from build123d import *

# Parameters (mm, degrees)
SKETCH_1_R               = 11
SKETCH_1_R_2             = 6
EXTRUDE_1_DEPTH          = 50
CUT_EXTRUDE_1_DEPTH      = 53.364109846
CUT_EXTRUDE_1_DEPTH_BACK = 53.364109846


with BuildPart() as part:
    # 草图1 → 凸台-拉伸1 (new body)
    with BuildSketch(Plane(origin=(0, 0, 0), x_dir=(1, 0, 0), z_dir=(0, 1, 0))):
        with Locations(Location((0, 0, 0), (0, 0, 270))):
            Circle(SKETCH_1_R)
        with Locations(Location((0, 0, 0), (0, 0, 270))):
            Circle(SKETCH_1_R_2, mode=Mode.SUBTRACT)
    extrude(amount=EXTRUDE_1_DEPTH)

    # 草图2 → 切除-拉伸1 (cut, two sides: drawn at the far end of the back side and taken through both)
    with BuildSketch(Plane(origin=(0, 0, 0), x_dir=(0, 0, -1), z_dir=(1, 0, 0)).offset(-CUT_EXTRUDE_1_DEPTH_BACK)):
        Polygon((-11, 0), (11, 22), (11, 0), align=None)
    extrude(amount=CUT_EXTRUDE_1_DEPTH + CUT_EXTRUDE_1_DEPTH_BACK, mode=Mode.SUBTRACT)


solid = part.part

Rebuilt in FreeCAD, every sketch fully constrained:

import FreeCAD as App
import Part
import Sketcher

V = App.Vector

doc = App.newDocument("Part")
params = doc.addObject("Spreadsheet::Sheet", "Params")
for row, (alias, value) in enumerate([
    ("sketch1_diameter", "22 mm"),
    ("sketch1_diameter2", "12 mm"),
    ("pad1_length", "50 mm"),
    ("sketch2_width", "22 mm"),
], start=1):
    params.set(f"A{row}", alias)
    params.set(f"B{row}", "=" + value)
    params.setAlias(f"B{row}", alias)

body = doc.addObject("PartDesign::Body", "Body")

# Sketch on XZ plane
sketch1 = body.newObject("Sketcher::SketchObject", "Sketch")
sketch1.AttachmentSupport = (doc.getObject("XZ_Plane"), [""])
sketch1.MapMode = "FlatFace"
sketch1.addGeometry([
    Part.Circle(V(0, 0, 0), V(0, 0, 1), 11),
    Part.Circle(V(0, 0, 0), V(0, 0, 1), 6),
], False)
sketch1.addConstraint([
    Sketcher.Constraint("Coincident", 0, 3, -1, 1),
    Sketcher.Constraint("Coincident", 1, 3, -1, 1),
    Sketcher.Constraint("Diameter", 0, 22.0),
    Sketcher.Constraint("Diameter", 1, 12.0),
])
sketch1.setExpression("Constraints[2]", "Params.sketch1_diameter")
sketch1.setExpression("Constraints[3]", "Params.sketch1_diameter2")
pad1 = body.newObject("PartDesign::Pad", "Pad")
pad1.Profile = sketch1
pad1.setExpression("Length", "Params.pad1_length")
pad1.Reversed = True

# Sketch on YZ plane
sketch2 = body.newObject("Sketcher::SketchObject", "Sketch001")
sketch2.AttachmentSupport = (doc.getObject("YZ_Plane"), [""])
sketch2.MapMode = "FlatFace"
sketch2.addGeometry([
    Part.LineSegment(V(22, -11, 0), V(0, 11, 0)),
    Part.LineSegment(V(0, 11, 0), V(0, -11, 0)),
    Part.LineSegment(V(0, -11, 0), V(22, -11, 0)),
], False)
sketch2.addConstraint([
    Sketcher.Constraint("Coincident", 0, 2, 1, 1),
    Sketcher.Constraint("Coincident", 1, 2, 2, 1),
    Sketcher.Constraint("Coincident", 2, 2, 0, 1),
    Sketcher.Constraint("Vertical", 1),
    Sketcher.Constraint("Horizontal", 2),
    Sketcher.Constraint("Symmetric", 0, 2, 1, 2, -1, 1),
    Sketcher.Constraint("Equal", 2, 1),
    Sketcher.Constraint("DistanceX", 2, 1, 2, 2, 22.0),
])
sketch2.setExpression("Constraints[7]", "Params.sketch2_width")
pocket1 = body.newObject("PartDesign::Pocket", "Pocket")
pocket1.Profile = sketch2
pocket1.Type = "ThroughAll"
pocket1.Midplane = True

doc.recompute()
